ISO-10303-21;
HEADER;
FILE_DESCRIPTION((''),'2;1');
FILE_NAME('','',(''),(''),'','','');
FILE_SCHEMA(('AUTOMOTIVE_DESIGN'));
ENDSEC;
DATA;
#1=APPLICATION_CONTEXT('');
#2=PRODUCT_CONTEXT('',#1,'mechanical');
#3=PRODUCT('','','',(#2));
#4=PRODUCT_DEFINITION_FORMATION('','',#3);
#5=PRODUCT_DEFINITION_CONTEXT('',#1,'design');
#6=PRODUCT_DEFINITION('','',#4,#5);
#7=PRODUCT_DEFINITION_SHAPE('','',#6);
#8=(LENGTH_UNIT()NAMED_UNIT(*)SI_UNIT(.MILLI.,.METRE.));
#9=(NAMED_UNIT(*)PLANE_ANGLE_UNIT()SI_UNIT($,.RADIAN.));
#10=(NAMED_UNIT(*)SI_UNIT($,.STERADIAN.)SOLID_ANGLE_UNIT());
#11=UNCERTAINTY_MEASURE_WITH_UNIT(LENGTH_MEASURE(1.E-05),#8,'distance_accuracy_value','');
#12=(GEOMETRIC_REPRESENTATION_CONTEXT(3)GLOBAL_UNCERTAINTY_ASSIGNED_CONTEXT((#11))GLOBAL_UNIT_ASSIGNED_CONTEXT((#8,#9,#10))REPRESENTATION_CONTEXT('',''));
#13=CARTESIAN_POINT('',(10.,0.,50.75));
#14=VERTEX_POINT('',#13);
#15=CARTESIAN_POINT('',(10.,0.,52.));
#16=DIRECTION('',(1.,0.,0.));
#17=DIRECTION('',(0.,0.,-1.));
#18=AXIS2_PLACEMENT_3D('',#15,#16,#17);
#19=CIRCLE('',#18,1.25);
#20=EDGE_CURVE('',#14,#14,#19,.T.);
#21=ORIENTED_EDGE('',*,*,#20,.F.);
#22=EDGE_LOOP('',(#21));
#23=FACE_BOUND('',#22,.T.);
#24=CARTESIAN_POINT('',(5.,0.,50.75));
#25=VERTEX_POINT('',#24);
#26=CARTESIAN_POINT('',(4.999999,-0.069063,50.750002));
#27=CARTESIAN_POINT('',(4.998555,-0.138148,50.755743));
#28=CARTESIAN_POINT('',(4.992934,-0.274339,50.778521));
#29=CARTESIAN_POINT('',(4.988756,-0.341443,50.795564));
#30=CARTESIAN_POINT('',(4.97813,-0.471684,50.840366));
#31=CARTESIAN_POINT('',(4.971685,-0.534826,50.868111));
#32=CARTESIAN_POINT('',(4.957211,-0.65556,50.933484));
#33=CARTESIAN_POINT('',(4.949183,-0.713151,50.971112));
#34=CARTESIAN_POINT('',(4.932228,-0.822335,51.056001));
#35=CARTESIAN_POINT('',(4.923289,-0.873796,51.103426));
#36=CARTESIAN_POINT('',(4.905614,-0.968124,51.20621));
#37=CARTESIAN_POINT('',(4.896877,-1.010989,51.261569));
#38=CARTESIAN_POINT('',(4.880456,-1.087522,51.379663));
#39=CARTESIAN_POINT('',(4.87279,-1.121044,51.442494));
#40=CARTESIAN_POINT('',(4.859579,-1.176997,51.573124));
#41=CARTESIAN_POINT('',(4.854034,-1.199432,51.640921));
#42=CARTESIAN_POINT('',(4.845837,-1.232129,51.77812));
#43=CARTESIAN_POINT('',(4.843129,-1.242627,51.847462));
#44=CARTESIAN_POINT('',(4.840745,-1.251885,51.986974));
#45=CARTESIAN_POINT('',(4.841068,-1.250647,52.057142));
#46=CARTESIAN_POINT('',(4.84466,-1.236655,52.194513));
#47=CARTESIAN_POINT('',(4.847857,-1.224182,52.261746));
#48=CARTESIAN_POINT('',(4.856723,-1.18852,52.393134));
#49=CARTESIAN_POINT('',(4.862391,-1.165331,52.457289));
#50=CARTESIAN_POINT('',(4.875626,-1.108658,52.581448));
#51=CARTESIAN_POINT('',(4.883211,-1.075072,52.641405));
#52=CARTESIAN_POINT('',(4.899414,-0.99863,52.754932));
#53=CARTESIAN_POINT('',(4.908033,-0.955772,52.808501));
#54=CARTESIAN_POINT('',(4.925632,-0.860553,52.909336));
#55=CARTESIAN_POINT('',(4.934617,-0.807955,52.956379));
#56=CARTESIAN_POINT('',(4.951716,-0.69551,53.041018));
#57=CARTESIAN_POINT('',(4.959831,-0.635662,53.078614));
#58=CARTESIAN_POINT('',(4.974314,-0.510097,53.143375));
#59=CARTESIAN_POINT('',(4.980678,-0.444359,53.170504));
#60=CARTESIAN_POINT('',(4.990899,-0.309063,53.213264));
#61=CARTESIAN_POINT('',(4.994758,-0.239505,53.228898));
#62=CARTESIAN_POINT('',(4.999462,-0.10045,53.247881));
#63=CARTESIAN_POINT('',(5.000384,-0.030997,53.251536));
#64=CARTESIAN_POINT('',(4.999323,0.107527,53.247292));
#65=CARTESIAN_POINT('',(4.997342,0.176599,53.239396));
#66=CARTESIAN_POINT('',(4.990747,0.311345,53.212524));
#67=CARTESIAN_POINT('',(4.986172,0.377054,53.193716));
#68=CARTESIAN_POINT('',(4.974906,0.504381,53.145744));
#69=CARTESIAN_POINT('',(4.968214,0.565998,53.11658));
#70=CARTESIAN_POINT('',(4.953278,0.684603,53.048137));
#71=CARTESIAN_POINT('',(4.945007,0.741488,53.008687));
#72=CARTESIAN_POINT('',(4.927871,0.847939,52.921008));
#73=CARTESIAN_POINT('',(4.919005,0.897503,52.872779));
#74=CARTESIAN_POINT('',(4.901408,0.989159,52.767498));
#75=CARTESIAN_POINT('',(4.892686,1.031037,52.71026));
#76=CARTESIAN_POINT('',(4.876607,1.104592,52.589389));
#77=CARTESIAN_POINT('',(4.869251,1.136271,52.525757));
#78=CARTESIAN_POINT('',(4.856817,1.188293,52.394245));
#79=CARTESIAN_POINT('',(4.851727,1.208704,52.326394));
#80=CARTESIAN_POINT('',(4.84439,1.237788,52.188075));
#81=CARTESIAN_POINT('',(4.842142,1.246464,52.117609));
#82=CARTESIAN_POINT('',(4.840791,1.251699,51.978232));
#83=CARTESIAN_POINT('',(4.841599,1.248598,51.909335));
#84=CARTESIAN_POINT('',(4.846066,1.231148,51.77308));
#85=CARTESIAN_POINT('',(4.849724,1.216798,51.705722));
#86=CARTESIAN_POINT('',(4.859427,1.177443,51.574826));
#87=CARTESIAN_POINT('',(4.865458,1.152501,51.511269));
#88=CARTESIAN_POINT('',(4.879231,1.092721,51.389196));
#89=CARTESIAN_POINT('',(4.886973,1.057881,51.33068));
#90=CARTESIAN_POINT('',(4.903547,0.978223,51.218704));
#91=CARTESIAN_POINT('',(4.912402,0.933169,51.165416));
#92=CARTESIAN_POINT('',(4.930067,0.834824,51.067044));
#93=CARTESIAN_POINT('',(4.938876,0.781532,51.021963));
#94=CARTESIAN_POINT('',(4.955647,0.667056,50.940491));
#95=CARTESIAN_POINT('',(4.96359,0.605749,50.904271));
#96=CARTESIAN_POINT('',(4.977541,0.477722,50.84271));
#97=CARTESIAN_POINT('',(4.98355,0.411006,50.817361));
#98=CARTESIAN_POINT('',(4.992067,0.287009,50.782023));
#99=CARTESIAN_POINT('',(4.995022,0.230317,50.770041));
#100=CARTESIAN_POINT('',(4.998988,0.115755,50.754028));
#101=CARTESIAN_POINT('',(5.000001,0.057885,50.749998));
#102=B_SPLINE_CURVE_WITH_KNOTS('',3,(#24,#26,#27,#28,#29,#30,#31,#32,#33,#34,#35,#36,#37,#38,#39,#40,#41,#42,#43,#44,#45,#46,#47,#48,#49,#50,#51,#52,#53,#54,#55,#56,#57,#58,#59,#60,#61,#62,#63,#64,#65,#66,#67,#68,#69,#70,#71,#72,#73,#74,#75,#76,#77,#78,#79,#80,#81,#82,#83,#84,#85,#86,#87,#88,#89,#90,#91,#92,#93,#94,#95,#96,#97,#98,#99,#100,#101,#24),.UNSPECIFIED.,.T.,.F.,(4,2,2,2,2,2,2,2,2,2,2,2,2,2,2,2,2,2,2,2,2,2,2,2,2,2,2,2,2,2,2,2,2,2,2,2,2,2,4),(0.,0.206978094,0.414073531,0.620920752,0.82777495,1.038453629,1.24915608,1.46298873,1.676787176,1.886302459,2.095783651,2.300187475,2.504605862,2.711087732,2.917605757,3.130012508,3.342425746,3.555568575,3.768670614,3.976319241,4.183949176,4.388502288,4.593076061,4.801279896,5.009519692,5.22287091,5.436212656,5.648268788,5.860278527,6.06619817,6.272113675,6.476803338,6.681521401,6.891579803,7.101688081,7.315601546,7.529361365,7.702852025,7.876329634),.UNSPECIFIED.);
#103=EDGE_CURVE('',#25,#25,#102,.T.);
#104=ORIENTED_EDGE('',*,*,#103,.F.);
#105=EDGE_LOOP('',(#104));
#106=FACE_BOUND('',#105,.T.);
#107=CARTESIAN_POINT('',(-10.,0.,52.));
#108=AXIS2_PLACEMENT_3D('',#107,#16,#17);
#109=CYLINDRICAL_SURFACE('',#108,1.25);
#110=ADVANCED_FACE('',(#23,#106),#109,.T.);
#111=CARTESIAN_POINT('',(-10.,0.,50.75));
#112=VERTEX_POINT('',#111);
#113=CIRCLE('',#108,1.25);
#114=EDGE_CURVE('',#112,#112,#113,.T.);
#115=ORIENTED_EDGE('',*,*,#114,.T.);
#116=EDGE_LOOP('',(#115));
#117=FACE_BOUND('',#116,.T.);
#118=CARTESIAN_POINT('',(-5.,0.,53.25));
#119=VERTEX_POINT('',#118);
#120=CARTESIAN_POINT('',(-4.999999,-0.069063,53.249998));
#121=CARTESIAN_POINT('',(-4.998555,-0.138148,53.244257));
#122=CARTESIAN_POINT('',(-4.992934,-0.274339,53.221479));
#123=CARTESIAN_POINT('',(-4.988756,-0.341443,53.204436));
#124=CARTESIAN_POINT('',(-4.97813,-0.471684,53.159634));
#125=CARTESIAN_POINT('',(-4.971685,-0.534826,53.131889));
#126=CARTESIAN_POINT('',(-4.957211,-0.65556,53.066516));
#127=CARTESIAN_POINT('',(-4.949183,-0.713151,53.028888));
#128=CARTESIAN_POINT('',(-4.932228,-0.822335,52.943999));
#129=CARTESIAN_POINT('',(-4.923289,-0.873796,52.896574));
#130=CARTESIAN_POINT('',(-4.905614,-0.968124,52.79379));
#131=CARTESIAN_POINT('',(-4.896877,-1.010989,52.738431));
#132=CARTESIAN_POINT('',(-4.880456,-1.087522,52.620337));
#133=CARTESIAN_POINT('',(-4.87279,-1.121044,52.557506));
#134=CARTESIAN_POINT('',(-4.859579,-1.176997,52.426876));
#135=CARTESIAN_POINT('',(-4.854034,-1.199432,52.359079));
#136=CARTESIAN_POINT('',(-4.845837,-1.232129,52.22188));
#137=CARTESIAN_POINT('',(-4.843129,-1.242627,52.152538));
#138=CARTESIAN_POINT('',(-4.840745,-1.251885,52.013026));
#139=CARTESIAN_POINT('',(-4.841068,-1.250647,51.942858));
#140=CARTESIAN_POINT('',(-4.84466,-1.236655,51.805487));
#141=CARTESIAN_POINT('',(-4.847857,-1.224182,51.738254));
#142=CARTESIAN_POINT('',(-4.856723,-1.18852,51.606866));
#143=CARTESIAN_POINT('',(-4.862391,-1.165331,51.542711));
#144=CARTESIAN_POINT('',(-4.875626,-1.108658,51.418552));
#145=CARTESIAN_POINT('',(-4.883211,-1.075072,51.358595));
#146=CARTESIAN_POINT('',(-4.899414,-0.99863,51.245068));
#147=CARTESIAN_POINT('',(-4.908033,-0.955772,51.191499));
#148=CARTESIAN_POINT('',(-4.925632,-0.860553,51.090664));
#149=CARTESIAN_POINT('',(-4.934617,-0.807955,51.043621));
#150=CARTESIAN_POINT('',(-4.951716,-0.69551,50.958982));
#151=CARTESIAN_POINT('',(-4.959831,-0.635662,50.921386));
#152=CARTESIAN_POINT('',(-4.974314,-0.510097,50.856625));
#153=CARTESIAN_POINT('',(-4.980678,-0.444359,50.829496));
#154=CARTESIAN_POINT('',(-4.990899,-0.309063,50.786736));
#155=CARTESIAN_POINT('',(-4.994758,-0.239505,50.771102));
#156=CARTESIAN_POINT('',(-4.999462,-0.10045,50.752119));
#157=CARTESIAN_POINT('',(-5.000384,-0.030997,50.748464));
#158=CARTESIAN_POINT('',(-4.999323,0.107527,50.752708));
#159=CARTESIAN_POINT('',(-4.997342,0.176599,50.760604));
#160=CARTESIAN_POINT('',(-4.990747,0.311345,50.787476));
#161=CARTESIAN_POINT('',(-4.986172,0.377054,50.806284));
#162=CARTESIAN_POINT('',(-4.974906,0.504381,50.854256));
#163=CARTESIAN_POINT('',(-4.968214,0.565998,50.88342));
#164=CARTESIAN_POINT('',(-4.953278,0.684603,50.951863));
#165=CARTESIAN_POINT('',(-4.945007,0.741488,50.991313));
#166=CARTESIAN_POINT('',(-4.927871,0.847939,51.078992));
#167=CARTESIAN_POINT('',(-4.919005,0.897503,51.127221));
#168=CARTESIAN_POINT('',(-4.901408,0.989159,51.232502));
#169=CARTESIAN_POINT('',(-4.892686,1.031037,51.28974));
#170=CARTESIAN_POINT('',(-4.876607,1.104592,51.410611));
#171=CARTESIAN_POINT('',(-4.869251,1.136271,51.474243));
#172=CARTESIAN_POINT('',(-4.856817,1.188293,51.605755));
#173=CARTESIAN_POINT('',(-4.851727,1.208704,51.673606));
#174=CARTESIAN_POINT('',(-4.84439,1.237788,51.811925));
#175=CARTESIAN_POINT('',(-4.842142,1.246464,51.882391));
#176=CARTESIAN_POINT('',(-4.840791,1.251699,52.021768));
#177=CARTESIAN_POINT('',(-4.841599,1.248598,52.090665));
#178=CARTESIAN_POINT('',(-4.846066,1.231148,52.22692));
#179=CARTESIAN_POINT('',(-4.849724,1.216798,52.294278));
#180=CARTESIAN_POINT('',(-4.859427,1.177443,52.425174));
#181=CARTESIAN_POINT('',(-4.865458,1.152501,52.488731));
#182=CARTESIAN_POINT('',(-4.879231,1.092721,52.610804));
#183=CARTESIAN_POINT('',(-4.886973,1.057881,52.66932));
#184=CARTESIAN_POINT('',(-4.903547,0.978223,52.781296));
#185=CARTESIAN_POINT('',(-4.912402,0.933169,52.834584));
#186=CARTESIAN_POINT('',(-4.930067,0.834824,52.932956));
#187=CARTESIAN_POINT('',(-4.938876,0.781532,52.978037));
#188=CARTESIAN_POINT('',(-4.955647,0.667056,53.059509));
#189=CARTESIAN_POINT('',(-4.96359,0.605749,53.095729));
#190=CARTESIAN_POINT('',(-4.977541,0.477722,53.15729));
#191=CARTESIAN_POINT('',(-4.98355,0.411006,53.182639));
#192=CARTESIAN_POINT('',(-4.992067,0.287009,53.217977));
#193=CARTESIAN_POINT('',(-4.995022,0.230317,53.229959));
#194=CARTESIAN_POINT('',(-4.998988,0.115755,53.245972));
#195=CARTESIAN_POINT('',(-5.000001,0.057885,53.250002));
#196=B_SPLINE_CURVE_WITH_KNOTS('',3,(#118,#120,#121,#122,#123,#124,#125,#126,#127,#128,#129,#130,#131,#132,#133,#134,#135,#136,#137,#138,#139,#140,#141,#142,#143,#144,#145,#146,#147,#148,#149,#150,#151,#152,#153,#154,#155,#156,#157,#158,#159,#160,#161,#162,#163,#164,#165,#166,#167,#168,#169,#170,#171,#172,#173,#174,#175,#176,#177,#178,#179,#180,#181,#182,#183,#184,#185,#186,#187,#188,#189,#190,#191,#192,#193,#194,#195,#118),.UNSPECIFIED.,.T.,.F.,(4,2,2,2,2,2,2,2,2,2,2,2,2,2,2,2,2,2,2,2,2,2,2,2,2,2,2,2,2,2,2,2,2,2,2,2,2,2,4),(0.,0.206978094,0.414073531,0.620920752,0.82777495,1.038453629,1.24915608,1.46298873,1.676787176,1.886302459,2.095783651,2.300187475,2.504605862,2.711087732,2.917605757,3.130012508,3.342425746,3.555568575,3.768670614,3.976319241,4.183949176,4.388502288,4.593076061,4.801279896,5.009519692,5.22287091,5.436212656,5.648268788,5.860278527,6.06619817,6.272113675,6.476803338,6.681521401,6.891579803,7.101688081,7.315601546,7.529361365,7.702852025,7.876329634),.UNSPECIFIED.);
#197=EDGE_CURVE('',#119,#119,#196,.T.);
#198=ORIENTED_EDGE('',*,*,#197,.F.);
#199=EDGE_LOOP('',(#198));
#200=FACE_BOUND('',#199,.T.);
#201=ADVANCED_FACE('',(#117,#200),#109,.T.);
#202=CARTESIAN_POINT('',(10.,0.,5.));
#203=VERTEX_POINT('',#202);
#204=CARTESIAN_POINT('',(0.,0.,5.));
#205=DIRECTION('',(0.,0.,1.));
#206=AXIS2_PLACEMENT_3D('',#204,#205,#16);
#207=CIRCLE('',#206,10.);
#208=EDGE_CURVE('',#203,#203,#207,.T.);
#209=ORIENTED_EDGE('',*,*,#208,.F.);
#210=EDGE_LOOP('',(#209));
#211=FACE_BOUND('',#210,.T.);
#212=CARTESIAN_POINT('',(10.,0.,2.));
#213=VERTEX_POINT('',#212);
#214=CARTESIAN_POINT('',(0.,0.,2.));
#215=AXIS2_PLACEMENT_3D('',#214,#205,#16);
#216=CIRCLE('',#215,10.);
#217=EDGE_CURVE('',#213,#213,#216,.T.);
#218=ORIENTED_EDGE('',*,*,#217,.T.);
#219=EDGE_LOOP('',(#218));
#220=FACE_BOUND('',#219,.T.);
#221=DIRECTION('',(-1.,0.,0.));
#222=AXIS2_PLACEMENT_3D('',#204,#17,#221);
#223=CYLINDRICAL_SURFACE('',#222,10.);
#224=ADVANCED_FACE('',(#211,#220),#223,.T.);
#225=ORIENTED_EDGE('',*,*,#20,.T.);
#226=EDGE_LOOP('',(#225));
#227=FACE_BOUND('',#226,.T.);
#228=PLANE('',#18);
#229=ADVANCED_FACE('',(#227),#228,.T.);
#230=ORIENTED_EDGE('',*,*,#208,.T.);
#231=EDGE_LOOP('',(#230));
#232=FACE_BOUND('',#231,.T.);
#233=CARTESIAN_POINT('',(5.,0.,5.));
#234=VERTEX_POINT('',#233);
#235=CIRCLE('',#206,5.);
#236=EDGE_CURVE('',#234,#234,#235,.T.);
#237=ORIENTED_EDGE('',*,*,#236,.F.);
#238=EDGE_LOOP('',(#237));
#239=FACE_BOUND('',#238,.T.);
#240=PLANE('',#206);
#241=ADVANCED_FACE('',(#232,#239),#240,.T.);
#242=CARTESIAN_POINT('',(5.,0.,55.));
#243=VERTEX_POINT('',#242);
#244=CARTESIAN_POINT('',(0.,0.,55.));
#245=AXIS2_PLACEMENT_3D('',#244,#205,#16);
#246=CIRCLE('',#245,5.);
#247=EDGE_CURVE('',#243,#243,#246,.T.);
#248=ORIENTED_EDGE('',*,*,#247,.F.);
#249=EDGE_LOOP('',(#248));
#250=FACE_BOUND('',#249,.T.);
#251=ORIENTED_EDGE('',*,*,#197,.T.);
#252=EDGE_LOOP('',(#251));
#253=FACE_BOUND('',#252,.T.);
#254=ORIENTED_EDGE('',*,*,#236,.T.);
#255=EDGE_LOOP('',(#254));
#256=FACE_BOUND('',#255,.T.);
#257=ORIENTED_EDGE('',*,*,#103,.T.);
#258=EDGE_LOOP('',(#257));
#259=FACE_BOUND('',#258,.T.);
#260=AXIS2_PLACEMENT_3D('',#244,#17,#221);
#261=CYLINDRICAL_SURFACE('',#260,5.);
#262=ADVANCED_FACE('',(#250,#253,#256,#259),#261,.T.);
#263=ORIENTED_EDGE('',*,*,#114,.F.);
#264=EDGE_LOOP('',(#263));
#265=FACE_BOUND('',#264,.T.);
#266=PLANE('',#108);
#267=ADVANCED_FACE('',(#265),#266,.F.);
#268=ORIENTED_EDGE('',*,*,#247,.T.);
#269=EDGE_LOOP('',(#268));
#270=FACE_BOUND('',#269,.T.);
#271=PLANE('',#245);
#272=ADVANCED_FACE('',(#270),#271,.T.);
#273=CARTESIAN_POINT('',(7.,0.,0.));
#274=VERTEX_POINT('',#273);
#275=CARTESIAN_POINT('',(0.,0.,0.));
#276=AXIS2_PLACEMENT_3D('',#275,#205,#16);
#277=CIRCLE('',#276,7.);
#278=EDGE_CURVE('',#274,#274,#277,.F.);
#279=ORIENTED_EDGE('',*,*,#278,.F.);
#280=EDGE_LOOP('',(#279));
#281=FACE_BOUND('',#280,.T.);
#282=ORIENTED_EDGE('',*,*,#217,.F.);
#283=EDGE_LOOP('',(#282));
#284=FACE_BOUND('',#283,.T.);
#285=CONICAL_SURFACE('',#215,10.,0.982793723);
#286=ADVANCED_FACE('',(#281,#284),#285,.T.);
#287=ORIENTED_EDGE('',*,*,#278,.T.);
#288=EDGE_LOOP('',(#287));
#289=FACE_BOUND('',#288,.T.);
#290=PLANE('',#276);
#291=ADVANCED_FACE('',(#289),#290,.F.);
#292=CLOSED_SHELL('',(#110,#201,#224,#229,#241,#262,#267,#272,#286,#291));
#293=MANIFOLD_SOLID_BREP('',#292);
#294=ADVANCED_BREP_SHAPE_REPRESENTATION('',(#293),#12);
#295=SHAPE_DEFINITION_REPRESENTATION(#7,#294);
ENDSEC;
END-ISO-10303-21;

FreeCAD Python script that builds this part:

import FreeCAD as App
import Part
import Sketcher

V = App.Vector


def edges_at(feature, points):
    """Names of the edges that pass closest to the given points."""
    edges = feature.Shape.Edges
    near = lambda p: min(range(len(edges)), key=lambda i: edges[i].distToShape(Part.Vertex(*p))[0])
    return sorted({f"Edge{near(p) + 1}" for p in points})

doc = App.newDocument("Part")
params = doc.addObject("Spreadsheet::Sheet", "Params")
for row, (alias, value) in enumerate([
    ("sketch1_diameter", "20 mm"),
    ("sketch1_diameter2", "10 mm"),
    ("pad1_length", "5 mm"),
    ("sketch2_diameter", "10 mm"),
    ("pad2_length", "55 mm"),
    ("chamfer_size", "3 mm"),
    ("chamfer_size2", "2 mm"),
    ("sketch3_diameter", "2.5 mm"),
    ("pad3_length", "10 mm"),
    ("pad3_length2", "10 mm"),
], start=1):
    params.set(f"A{row}", alias)
    params.set(f"B{row}", "=" + value)
    params.setAlias(f"B{row}", alias)

body = doc.addObject("PartDesign::Body", "Body")

# Sketch on XY plane
sketch1 = doc.addObject("Sketcher::SketchObject", "Sketch")
body.addObject(sketch1)
sketch1.AttachmentSupport = (doc.XY_Plane, [""])
sketch1.MapMode = "FlatFace"
sketch1.addGeometry([
    Part.Circle(V(0, 0, 0), V(0, 0, 1), 10),
    Part.Circle(V(0, 0, 0), V(0, 0, 1), 5),
], False)
sketch1.addConstraint([
    Sketcher.Constraint("Coincident", 0, 3, -1, 1),
    Sketcher.Constraint("Coincident", 1, 3, -1, 1),
    Sketcher.Constraint("Diameter", 0, 20.0),
    Sketcher.Constraint("Diameter", 1, 10.0),
])
sketch1.setExpression("Constraints[2]", "Params.sketch1_diameter")
sketch1.setExpression("Constraints[3]", "Params.sketch1_diameter2")
pad1 = doc.addObject("PartDesign::Pad", "Pad")
body.addObject(pad1)
pad1.Profile = sketch1
pad1.setExpression("Length", "Params.pad1_length")

# Sketch on XY plane
sketch2 = doc.addObject("Sketcher::SketchObject", "Sketch001")
body.addObject(sketch2)
sketch2.AttachmentSupport = (doc.XY_Plane, [""])
sketch2.MapMode = "FlatFace"
sketch2.addGeometry(Part.Circle(V(0, 0, 0), V(0, 0, 1), 5), False)
sketch2.addConstraint([
    Sketcher.Constraint("Coincident", 0, 3, -1, 1),
    Sketcher.Constraint("Diameter", 0, 10.0),
])
sketch2.setExpression("Constraints[1]", "Params.sketch2_diameter")
pad2 = doc.addObject("PartDesign::Pad", "Pad001")
body.addObject(pad2)
pad2.Profile = sketch2
pad2.setExpression("Length", "Params.pad2_length")
doc.recompute()

chamfer = doc.addObject("PartDesign::Chamfer", "Chamfer")
body.addObject(chamfer)
chamfer.Base = (pad2, edges_at(pad2, [(-10, 0, 0)]))
chamfer.ChamferType = "Two distances"
chamfer.setExpression("Size", "Params.chamfer_size")
chamfer.setExpression("Size2", "Params.chamfer_size2")
chamfer.FlipDirection = True

# Sketch on YZ plane
sketch3 = doc.addObject("Sketcher::SketchObject", "Sketch002")
body.addObject(sketch3)
sketch3.AttachmentSupport = (doc.YZ_Plane, [""])
sketch3.MapMode = "FlatFace"
sketch3.addGeometry(Part.Circle(V(0, 52, 0), V(0, 0, 1), 1.2), False)
sketch3.addConstraint([
    Sketcher.Constraint("PointOnObject", 0, 3, -2),
    Sketcher.Constraint("Diameter", 0, 2.5),
    Sketcher.Constraint("DistanceY", -1, 1, 0, 3, 52.0),
])
sketch3.setExpression("Constraints[1]", "Params.sketch3_diameter")
pad3 = doc.addObject("PartDesign::Pad", "Pad002")
body.addObject(pad3)
pad3.Profile = sketch3
pad3.Type = "TwoLengths"
pad3.setExpression("Length", "Params.pad3_length")
pad3.setExpression("Length2", "Params.pad3_length2")

doc.recompute()
